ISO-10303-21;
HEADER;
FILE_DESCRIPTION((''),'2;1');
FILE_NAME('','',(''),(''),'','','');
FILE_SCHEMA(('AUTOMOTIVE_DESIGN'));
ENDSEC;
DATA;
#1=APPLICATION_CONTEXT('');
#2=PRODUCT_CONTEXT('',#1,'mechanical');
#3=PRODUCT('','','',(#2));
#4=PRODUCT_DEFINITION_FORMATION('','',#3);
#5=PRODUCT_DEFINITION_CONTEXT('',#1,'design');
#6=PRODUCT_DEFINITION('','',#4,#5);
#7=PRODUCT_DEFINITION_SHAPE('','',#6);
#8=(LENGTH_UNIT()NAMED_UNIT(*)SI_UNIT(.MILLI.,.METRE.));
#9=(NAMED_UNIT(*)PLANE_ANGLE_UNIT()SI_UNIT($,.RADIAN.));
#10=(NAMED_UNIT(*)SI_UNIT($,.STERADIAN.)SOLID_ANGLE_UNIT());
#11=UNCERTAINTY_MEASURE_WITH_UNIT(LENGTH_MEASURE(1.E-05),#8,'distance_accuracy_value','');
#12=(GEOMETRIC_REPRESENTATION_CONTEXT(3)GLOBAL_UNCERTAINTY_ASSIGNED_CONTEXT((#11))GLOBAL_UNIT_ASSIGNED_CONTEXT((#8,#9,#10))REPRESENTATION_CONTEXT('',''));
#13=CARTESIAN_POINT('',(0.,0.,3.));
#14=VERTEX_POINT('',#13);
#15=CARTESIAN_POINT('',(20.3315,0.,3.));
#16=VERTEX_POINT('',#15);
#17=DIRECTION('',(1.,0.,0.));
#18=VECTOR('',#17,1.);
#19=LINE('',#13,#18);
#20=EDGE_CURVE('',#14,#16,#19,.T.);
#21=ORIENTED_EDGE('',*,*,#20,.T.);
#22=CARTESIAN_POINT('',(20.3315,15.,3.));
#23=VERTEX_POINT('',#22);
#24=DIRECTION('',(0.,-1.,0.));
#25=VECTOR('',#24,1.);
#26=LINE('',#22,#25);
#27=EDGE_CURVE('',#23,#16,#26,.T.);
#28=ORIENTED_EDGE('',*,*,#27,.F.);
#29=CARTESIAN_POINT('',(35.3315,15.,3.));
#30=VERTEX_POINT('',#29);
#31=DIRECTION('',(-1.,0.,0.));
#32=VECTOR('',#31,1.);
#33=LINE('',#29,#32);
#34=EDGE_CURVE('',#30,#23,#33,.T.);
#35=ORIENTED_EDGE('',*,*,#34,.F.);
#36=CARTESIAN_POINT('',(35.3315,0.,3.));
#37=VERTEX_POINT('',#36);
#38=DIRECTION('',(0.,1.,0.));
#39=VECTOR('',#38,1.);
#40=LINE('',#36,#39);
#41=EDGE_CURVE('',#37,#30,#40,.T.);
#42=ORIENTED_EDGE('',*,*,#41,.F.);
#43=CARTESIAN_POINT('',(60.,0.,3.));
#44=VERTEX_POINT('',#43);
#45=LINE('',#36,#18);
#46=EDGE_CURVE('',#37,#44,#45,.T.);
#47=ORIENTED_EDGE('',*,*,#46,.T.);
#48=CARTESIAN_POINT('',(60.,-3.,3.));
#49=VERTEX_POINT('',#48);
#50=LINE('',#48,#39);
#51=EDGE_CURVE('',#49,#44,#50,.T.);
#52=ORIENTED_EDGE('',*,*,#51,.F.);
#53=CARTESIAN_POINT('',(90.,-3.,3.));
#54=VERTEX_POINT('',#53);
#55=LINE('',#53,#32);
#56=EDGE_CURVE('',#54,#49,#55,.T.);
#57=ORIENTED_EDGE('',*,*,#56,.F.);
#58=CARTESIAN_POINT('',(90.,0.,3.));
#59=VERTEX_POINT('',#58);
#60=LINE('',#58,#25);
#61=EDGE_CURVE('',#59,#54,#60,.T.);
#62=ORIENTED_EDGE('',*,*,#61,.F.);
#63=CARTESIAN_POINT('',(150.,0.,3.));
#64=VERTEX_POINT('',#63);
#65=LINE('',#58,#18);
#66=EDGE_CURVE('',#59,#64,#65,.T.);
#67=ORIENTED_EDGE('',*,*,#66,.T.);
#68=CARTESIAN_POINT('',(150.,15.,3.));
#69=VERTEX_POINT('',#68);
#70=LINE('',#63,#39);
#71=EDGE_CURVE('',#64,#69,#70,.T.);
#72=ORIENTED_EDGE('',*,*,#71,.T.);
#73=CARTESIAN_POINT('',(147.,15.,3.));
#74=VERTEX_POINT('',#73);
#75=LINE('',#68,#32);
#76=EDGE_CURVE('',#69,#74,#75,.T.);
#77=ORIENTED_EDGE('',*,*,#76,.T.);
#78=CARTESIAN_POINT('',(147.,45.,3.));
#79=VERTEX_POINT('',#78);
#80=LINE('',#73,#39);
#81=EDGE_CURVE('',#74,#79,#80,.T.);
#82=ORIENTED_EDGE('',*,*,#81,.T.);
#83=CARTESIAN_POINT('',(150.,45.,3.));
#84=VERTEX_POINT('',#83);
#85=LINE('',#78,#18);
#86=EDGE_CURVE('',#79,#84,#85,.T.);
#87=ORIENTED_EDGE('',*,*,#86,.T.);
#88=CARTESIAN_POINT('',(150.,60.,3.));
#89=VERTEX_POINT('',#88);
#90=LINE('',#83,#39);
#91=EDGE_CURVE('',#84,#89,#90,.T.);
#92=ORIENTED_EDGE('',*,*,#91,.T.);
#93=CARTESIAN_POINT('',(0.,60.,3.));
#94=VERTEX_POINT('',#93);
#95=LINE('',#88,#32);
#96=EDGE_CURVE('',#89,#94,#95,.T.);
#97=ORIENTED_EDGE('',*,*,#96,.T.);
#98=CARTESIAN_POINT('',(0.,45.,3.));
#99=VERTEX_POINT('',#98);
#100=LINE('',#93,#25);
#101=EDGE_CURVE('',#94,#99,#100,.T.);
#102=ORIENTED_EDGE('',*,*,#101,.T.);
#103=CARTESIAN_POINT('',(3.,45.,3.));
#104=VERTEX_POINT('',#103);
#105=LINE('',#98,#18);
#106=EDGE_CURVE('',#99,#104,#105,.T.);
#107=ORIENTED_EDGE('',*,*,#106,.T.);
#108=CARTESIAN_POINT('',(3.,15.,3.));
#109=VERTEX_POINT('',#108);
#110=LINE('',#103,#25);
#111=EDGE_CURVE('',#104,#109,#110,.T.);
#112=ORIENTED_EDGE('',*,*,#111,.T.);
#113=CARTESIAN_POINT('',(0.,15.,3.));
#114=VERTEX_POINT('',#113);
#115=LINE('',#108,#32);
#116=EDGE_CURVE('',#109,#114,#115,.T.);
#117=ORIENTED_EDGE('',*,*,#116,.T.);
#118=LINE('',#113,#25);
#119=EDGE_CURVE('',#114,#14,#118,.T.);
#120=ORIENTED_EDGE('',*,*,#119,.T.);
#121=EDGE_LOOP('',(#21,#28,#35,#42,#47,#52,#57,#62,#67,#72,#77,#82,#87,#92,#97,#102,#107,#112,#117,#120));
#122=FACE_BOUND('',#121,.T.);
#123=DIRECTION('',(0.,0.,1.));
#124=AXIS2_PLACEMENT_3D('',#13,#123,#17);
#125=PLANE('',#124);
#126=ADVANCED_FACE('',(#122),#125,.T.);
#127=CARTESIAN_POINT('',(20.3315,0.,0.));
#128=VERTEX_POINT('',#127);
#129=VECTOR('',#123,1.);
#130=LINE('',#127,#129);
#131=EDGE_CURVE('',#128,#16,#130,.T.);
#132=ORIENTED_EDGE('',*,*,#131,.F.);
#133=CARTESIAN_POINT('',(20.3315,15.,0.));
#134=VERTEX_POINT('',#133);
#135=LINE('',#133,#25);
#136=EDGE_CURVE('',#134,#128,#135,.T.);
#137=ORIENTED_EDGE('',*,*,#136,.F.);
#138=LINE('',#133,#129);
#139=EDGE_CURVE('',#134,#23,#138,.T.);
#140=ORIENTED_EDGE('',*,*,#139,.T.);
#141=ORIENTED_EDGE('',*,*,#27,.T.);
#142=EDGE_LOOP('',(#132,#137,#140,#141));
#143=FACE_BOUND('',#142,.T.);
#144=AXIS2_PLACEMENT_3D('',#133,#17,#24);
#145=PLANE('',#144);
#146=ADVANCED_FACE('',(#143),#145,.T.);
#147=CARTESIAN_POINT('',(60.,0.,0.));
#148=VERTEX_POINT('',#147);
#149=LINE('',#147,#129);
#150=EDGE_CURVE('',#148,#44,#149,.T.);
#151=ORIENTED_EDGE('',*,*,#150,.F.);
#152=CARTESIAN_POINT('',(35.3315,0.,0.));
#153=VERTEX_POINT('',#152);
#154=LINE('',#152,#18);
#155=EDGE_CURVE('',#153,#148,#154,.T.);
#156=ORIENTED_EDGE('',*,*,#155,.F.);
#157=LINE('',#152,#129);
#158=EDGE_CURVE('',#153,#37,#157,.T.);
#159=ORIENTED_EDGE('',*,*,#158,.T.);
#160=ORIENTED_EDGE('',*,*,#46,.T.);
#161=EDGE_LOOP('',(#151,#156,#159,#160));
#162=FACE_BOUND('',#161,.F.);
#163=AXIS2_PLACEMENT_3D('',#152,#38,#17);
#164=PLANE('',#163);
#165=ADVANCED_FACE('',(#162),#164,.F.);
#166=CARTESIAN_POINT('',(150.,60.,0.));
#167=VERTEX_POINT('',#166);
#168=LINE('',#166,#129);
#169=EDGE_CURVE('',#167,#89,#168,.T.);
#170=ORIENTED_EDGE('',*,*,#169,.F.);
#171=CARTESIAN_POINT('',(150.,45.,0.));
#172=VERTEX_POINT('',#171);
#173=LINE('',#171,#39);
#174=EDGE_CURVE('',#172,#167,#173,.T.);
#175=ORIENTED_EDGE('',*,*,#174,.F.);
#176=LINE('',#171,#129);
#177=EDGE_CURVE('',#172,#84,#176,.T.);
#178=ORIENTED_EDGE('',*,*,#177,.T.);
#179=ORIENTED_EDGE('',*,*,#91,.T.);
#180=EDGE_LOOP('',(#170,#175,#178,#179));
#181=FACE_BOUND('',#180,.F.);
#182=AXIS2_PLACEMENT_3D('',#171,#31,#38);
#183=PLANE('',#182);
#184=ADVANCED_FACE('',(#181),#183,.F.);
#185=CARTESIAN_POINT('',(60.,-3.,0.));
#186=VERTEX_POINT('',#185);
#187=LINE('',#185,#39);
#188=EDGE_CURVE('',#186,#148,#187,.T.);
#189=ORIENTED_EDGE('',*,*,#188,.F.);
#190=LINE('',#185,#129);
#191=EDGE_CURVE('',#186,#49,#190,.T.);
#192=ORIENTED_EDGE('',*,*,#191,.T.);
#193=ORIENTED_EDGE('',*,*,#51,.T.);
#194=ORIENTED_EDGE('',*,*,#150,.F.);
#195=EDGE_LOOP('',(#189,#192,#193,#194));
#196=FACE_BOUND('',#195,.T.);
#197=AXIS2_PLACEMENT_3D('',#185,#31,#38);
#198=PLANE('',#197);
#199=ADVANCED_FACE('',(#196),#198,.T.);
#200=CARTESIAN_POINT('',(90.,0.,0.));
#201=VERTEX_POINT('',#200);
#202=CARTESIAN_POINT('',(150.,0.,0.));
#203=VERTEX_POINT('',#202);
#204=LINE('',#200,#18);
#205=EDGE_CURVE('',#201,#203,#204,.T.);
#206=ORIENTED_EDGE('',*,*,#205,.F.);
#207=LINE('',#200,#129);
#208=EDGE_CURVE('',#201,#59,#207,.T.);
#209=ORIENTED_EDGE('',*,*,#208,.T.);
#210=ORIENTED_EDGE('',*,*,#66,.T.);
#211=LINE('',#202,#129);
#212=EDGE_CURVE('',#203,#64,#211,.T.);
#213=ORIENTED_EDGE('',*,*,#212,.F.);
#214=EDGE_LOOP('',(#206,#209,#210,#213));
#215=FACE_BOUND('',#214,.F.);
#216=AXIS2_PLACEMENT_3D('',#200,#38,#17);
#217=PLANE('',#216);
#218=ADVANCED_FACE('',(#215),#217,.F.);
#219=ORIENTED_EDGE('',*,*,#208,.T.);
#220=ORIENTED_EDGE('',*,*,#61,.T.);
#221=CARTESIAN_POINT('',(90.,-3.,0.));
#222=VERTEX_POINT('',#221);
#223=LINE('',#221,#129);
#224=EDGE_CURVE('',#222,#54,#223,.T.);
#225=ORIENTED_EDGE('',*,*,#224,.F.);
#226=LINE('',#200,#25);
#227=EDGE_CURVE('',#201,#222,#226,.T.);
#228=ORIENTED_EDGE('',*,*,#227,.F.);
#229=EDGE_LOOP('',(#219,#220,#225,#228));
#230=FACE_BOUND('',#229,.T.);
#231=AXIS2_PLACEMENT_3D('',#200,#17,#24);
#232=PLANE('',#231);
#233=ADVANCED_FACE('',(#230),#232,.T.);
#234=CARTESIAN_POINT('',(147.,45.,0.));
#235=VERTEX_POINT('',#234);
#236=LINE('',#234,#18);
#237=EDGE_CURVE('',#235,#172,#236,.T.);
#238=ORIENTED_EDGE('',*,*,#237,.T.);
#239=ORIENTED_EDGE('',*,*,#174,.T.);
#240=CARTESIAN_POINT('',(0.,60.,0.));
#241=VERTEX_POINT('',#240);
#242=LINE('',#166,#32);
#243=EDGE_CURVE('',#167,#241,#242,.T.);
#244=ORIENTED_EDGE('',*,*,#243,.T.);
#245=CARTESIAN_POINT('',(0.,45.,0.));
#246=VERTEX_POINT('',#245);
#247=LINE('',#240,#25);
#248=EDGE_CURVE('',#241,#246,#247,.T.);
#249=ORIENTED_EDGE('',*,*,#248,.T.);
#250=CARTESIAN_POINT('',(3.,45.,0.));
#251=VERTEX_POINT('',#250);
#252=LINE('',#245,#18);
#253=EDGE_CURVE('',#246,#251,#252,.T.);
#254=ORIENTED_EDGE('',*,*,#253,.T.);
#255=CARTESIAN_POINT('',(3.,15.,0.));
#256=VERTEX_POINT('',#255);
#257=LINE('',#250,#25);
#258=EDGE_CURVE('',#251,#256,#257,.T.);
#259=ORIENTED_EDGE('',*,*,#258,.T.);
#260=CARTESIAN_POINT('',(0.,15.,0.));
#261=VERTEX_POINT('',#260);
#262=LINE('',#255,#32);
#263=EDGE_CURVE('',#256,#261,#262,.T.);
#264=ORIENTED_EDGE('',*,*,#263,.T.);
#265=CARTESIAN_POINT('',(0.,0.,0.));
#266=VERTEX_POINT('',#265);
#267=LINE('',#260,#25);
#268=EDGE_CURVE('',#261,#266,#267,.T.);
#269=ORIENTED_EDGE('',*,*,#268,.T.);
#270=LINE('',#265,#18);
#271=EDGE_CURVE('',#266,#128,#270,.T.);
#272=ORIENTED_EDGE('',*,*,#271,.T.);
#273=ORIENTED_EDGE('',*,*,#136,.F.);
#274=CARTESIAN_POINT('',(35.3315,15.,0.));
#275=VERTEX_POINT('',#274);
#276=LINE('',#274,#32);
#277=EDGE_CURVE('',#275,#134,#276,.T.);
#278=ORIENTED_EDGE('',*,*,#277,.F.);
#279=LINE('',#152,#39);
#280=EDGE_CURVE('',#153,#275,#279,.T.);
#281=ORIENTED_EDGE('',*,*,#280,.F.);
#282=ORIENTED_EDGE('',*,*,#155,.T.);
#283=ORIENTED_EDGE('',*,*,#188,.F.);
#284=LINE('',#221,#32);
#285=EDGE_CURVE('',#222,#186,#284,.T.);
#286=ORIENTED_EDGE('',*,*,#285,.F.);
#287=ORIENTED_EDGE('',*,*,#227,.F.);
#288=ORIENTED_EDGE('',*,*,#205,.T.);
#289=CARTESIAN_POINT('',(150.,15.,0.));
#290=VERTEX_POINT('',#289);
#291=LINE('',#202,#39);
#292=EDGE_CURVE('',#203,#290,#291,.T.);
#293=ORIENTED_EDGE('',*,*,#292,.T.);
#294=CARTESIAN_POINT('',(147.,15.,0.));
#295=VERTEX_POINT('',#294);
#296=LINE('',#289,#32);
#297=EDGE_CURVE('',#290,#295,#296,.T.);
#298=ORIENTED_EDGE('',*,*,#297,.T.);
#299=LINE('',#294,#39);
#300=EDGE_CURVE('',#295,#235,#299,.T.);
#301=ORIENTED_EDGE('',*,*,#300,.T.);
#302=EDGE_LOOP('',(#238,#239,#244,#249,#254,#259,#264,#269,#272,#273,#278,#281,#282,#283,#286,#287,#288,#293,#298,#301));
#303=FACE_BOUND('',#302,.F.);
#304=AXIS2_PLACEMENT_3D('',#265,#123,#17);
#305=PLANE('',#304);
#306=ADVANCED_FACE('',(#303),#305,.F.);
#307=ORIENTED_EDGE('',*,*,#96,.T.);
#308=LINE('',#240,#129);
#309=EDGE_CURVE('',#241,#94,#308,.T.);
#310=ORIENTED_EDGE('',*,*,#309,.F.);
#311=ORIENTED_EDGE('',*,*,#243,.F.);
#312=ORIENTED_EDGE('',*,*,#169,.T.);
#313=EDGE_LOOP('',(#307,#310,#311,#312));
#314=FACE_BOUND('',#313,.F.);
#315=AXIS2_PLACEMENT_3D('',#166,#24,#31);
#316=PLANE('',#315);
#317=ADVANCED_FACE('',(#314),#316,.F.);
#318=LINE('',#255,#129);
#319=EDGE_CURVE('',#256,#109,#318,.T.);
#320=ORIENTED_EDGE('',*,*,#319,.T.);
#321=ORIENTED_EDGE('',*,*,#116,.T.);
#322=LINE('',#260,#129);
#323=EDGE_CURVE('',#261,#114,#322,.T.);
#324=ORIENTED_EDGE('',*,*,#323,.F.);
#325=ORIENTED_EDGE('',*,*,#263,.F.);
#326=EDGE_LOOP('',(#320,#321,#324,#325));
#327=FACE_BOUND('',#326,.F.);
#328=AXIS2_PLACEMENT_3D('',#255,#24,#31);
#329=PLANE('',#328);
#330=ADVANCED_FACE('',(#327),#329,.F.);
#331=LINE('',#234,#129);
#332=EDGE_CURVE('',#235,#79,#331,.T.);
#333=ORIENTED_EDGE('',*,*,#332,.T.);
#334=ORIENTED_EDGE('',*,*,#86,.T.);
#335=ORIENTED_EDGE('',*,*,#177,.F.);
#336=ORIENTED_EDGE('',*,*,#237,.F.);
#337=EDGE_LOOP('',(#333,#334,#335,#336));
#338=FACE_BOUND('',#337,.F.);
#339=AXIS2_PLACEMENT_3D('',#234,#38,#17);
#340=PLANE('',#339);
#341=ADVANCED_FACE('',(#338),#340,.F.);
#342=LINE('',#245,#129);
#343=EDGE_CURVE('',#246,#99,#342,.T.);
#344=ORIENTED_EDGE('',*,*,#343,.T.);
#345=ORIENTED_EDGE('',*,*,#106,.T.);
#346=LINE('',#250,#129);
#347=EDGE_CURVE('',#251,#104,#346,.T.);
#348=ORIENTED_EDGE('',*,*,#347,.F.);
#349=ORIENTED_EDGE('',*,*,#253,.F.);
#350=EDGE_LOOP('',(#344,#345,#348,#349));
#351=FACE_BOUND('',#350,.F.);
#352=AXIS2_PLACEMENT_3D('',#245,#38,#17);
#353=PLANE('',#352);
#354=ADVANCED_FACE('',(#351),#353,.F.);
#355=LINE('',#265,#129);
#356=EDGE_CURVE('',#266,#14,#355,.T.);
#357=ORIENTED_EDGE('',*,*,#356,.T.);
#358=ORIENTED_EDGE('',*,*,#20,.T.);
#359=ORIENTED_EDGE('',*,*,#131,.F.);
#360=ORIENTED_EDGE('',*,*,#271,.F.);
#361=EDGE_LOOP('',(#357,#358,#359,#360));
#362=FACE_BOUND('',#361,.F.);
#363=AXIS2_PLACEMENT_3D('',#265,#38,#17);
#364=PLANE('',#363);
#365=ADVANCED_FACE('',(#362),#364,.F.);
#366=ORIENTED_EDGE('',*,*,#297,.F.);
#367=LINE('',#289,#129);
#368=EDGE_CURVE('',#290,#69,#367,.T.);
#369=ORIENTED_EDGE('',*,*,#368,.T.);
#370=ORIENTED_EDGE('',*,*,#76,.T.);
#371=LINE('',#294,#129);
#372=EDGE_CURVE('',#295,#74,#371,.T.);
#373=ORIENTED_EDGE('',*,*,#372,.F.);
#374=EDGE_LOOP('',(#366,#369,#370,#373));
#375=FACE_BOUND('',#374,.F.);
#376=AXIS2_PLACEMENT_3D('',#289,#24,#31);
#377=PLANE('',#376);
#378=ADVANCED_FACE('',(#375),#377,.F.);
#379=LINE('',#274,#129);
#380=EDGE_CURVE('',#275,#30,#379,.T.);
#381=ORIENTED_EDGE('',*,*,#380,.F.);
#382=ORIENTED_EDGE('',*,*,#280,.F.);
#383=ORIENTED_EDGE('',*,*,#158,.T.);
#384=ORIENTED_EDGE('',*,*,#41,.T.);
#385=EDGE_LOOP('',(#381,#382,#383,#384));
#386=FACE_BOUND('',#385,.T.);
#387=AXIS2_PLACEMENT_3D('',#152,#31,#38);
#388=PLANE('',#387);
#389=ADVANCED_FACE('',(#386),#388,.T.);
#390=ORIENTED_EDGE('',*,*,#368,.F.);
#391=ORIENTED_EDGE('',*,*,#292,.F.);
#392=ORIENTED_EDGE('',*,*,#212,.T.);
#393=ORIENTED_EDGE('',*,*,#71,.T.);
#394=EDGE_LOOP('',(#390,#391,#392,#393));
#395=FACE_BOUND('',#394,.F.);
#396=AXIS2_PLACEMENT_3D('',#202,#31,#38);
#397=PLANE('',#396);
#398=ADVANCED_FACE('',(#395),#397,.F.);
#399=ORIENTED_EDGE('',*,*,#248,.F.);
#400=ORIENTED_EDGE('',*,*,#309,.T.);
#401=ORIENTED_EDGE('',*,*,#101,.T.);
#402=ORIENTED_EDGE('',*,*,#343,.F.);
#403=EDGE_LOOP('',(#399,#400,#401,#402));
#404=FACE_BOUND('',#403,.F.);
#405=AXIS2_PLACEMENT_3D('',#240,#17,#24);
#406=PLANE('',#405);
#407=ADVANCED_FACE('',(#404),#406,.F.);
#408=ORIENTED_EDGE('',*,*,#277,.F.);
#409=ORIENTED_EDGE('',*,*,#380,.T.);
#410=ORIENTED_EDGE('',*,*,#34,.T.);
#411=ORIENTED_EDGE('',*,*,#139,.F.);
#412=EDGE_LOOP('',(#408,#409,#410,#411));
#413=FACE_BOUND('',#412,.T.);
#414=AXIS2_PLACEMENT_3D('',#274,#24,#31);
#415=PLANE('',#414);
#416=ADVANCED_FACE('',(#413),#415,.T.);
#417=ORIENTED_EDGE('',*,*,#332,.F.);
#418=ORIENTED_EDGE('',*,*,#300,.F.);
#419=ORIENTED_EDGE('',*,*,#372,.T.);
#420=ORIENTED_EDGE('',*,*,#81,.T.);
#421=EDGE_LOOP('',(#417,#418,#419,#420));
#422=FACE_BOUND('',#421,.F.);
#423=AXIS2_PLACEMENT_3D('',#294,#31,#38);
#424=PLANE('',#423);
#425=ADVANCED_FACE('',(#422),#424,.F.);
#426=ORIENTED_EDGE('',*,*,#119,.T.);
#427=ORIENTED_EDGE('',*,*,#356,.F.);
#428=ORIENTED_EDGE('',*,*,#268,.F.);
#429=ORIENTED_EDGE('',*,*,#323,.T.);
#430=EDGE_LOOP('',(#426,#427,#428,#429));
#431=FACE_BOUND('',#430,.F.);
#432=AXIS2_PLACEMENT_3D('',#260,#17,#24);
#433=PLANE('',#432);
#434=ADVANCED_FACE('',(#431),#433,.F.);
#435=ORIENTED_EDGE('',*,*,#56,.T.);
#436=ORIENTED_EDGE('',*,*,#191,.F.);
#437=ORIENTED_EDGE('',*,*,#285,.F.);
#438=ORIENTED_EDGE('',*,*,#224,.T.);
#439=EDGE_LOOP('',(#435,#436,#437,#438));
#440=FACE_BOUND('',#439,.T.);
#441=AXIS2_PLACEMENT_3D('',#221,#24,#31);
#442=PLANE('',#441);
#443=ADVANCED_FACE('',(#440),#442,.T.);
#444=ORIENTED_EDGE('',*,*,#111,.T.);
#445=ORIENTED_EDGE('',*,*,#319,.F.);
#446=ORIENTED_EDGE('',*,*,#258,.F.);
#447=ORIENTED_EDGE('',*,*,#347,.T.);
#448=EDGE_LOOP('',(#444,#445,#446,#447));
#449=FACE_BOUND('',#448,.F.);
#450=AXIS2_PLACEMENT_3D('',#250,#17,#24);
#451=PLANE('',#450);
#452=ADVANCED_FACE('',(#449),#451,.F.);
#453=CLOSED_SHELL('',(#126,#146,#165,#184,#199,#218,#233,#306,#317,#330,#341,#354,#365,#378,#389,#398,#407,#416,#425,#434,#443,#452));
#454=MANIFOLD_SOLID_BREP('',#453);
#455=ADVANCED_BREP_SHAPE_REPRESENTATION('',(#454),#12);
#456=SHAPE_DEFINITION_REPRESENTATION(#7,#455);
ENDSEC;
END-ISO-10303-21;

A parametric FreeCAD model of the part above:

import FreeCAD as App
import Part
import Sketcher
from FreeCAD import Vector
Q = App.Units.Quantity


def add_polygon(sketch, points):
    """Adds a closed chain of lines whose ends are joined by coincident constraints."""
    first, n = sketch.GeometryCount, len(points)
    for a, b in zip(points, points[1:] + points[:1]):
        sketch.addGeometry(Part.LineSegment(App.Vector(*a, 0), App.Vector(*b, 0)), False)
    for i in range(n):
        sketch.addConstraint(Sketcher.Constraint("Coincident", first + i, 2, first + (i + 1) % n, 1))

doc = App.newDocument("Part")
body = doc.addObject("PartDesign::Body", "Body")

# Sketch on XY plane
sketch1 = doc.addObject("Sketcher::SketchObject", "Sketch")
body.addObject(sketch1)
sketch1.AttachmentSupport = (doc.XY_Plane, [""])
sketch1.MapMode = "FlatFace"
add_polygon(sketch1, [(90, -3), (90, 0), (150, 0), (150, 15), (147, 15), (147, 45), (150, 45), (150, 60), (0, 60), (0, 45), (3, 45), (3, 15), (0, 15), (0, 0), (20.3, 0), (20.3, 15), (35.3, 15), (35.3, 0), (60, 0), (60, -3)])  # lines 0-19
sketch1.addConstraint([
    Sketcher.Constraint("Vertical", 0),
    Sketcher.Constraint("Horizontal", 1),
    Sketcher.Constraint("Vertical", 2),
    Sketcher.Constraint("Horizontal", 3),
    Sketcher.Constraint("Vertical", 4),
    Sketcher.Constraint("Horizontal", 5),
    Sketcher.Constraint("Vertical", 6),
    Sketcher.Constraint("Horizontal", 7),
    Sketcher.Constraint("Vertical", 8),
    Sketcher.Constraint("Horizontal", 9),
    Sketcher.Constraint("Vertical", 10),
    Sketcher.Constraint("Horizontal", 11),
    Sketcher.Constraint("Vertical", 12),
    Sketcher.Constraint("Horizontal", 13),
    Sketcher.Constraint("Vertical", 14),
    Sketcher.Constraint("Horizontal", 15),
    Sketcher.Constraint("Vertical", 16),
    Sketcher.Constraint("Horizontal", 17),
    Sketcher.Constraint("Vertical", 18),
    Sketcher.Constraint("Horizontal", 19),
    Sketcher.Constraint("Coincident", 12, 2, -1, 1),
    Sketcher.Constraint("PointOnObject", 0, 2, -1),
    Sketcher.Constraint("PointOnObject", 7, 2, -2),
    Sketcher.Constraint("PointOnObject", 16, 2, -1),
    Sketcher.Constraint("Horizontal", 5, 2, 8, 2),
    Sketcher.Constraint("Horizontal", 3, 2, 10, 2),
    Sketcher.Constraint("Horizontal", 11, 2, 14, 2),
    Sketcher.Constraint("Vertical", 2, 2, 5, 2),
    Sketcher.Constraint("Equal", 5, 9),
    Sketcher.Constraint("Equal", 11, 0),
    Sketcher.Constraint("Equal", 15, 2),
    Sketcher.Constraint("Equal", 19, 4),
    Sketcher.Constraint("Equal", 2, 6),
    Sketcher.Constraint("DistanceX", 1, 1, 1, 2, Q("60 mm")),
    Sketcher.Constraint("DistanceX", 3, 2, 3, 1, Q("3 mm")),
    Sketcher.Constraint("DistanceX", 7, 2, 7, 1, Q("150 mm")),
    Sketcher.Constraint("DistanceX", 15, 1, 15, 2, Q("15 mm")),
    Sketcher.Constraint("DistanceX", 19, 1, 19, 2, Q("30 mm")),
    Sketcher.Constraint("DistanceX", 13, 1, 13, 2, Q("20.3315 mm")),
])
pad1 = doc.addObject("PartDesign::Pad", "Pad")
body.addObject(pad1)
pad1.Profile = sketch1
pad1.Length = 3

doc.recompute()
